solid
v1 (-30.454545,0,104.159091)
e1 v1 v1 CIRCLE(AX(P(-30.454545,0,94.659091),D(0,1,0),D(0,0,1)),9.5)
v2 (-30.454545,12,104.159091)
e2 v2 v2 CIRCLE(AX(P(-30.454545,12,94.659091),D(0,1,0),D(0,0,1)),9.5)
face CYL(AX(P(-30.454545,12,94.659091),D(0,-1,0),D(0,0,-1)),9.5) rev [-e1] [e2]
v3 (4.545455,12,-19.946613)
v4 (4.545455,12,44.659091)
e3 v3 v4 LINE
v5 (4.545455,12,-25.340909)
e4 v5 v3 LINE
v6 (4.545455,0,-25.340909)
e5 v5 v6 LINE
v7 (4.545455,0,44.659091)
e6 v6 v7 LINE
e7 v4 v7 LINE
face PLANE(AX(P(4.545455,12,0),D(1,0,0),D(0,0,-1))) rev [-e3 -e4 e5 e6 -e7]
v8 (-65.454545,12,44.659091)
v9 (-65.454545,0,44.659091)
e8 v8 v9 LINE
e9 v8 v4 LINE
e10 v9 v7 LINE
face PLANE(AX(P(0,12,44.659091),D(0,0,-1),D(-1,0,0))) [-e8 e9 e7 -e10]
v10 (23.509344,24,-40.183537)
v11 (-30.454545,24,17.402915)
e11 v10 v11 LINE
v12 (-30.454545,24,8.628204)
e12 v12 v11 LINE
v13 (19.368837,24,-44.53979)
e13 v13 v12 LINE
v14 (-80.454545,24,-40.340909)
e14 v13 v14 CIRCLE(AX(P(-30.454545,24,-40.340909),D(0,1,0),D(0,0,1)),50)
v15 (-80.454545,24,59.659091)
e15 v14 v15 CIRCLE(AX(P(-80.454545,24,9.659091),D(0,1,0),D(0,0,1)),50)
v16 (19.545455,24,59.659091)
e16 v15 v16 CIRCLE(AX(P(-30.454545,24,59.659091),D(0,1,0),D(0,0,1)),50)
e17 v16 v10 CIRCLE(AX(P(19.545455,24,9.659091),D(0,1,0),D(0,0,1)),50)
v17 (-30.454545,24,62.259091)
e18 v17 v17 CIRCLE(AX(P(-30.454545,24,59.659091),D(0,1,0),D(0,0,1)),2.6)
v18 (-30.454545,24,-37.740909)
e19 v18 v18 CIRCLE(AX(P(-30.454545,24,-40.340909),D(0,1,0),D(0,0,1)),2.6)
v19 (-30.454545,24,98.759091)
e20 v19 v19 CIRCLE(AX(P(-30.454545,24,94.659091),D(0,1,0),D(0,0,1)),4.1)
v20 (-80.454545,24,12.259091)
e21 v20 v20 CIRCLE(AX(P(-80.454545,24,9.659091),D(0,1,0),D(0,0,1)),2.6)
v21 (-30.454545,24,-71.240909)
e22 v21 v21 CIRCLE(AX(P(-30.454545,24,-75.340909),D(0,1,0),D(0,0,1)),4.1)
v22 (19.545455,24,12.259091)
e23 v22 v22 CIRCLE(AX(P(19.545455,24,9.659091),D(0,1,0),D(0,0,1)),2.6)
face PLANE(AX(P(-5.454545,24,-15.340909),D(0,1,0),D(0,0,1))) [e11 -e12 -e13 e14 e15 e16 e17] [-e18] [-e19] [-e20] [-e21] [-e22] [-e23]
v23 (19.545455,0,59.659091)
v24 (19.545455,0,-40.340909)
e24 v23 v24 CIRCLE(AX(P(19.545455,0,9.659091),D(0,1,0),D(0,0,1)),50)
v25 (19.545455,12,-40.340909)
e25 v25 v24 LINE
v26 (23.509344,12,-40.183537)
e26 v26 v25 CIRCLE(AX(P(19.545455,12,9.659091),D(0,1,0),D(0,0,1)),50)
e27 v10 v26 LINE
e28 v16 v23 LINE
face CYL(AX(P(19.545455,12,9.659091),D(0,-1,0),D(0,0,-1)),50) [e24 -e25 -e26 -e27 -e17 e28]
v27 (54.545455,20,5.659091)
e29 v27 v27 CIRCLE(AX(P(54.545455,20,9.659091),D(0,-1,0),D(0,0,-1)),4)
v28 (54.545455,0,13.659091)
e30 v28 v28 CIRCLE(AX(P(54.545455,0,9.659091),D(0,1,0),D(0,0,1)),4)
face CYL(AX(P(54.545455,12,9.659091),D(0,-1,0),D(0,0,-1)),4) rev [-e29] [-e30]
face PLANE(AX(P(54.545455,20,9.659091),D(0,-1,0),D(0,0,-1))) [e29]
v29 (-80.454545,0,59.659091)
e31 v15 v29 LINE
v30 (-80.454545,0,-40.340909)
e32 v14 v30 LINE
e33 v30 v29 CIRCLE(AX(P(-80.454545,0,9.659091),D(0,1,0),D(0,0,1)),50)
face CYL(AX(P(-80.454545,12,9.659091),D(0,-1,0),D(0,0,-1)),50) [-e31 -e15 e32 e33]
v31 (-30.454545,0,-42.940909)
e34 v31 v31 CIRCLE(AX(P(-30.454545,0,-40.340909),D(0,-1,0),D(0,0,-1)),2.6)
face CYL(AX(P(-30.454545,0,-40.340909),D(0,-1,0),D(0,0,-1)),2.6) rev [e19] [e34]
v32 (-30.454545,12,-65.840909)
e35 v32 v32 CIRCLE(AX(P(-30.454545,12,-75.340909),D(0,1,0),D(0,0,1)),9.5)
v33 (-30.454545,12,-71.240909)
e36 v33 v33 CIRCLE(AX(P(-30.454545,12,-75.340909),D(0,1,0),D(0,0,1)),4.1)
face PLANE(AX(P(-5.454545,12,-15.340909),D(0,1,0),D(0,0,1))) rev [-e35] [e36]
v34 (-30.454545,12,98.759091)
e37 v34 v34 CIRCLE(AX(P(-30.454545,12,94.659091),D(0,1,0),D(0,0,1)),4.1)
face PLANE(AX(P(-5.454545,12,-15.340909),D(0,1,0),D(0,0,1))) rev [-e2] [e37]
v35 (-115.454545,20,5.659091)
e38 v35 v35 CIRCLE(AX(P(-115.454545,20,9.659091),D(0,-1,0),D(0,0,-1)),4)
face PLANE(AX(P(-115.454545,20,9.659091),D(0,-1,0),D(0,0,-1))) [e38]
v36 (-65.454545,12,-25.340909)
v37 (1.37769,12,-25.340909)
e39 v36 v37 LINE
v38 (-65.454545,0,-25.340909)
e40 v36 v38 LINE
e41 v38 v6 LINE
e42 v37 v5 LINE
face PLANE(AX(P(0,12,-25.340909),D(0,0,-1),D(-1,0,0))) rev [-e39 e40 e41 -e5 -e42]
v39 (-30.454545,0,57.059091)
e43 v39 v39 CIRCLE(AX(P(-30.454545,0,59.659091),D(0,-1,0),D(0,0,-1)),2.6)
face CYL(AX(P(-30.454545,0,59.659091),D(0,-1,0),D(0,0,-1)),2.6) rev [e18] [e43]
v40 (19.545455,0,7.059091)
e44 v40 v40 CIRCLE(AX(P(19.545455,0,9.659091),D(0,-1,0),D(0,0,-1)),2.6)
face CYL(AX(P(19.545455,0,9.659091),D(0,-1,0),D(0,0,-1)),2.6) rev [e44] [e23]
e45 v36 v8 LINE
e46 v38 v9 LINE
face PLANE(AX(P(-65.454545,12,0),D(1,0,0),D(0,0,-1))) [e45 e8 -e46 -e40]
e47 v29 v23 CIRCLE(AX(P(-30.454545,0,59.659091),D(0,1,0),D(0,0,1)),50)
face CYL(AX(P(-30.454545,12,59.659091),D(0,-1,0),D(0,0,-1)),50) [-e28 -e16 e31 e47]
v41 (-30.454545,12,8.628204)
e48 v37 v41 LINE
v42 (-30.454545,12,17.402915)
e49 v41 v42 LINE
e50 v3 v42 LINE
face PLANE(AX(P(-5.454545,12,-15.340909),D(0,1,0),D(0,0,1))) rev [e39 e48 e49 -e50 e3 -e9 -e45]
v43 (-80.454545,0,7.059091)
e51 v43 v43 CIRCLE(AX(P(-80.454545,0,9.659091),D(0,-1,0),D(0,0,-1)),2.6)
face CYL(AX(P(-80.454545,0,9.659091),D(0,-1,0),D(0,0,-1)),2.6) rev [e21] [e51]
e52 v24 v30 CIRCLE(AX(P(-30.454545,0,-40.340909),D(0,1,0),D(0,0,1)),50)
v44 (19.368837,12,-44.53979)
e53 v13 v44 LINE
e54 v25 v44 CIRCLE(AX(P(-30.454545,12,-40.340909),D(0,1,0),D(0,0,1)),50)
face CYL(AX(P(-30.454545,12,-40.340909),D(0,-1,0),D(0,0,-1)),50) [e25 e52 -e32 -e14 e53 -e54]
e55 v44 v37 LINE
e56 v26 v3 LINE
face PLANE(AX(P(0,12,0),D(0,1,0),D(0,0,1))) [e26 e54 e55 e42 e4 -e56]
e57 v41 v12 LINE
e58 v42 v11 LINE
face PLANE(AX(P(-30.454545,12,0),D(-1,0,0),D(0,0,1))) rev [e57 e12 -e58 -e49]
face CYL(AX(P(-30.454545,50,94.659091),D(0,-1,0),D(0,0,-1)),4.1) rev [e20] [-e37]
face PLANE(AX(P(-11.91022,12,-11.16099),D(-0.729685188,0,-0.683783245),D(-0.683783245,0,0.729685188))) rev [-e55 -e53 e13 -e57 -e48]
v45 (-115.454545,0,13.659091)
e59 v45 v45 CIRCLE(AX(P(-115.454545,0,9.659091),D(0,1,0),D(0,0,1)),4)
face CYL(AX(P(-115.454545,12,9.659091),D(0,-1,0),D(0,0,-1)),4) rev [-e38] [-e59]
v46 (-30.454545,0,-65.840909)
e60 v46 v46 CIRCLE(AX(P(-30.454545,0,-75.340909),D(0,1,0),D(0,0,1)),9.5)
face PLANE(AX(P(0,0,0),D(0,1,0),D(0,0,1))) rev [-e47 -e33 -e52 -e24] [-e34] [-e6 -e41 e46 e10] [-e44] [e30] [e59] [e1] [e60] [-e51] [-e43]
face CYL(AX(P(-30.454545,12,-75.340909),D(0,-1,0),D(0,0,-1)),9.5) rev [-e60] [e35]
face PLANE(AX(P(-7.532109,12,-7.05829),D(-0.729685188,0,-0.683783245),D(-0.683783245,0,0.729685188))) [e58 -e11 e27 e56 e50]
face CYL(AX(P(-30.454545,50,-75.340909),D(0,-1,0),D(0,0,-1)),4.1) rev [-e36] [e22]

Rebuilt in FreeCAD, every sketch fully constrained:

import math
import FreeCAD as App
import Part
import Sketcher
from FreeCAD import Vector
Q = App.Units.Quantity

doc = App.newDocument("Part")
body = doc.addObject("PartDesign::Body", "Body")

# Sketch on XZ plane
sketch1 = body.newObject("Sketcher::SketchObject", "Sketch")
sketch1.AttachmentSupport = (doc.getObject("XZ_Plane"), [""])
sketch1.MapMode = "FlatFace"
sketch1.addGeometry(Part.ArcOfCircle(Part.Circle(Vector(-30.454545, -40.340909, 0), Vector(0, 0, 1), 50), math.radians(180), math.radians(360)), False)
sketch1.addGeometry(Part.ArcOfCircle(Part.Circle(Vector(-80.454545, 9.659091, 0), Vector(0, 0, 1), 50), math.radians(90), math.radians(270)), False)
sketch1.addGeometry(Part.ArcOfCircle(Part.Circle(Vector(-30.454545, 59.659091, 0), Vector(0, 0, 1), 50), math.radians(0), math.radians(180)), False)
sketch1.addGeometry(Part.ArcOfCircle(Part.Circle(Vector(19.545455, 9.659091, 0), Vector(0, 0, 1), 50), math.radians(-90), math.radians(90)), False)
sketch1.addGeometry(Part.Circle(Vector(-30.454545, 94.659091, 0), Vector(0, 0, 1), 9.5), False)
sketch1.addGeometry(Part.Circle(Vector(-115.454545, 9.659091, 0), Vector(0, 0, 1), 4), False)
sketch1.addGeometry(Part.LineSegment(Vector(4.545455, 44.659091, 0), Vector(-65.454545, 44.659091, 0)), False)
sketch1.addGeometry(Part.LineSegment(Vector(-65.454545, 44.659091, 0), Vector(-65.454545, -25.340909, 0)), False)
sketch1.addGeometry(Part.LineSegment(Vector(-65.454545, -25.340909, 0), Vector(4.545455, -25.340909, 0)), False)
sketch1.addGeometry(Part.LineSegment(Vector(4.545455, -25.340909, 0), Vector(4.545455, 44.659091, 0)), False)
sketch1.addGeometry(Part.Circle(Vector(54.545455, 9.659091, 0), Vector(0, 0, 1), 4), False)
sketch1.addGeometry(Part.Circle(Vector(-30.454545, -75.340909, 0), Vector(0, 0, 1), 9.5), False)
sketch1.addConstraint(Sketcher.Constraint("Coincident", 0, 1, 1, 2))
sketch1.addConstraint(Sketcher.Constraint("Coincident", 1, 1, 2, 2))
sketch1.addConstraint(Sketcher.Constraint("Coincident", 2, 1, 3, 2))
sketch1.addConstraint(Sketcher.Constraint("Coincident", 3, 1, 0, 2))
sketch1.addConstraint(Sketcher.Constraint("Coincident", 6, 2, 7, 1))
sketch1.addConstraint(Sketcher.Constraint("Coincident", 7, 2, 8, 1))
sketch1.addConstraint(Sketcher.Constraint("Coincident", 8, 2, 9, 1))
sketch1.addConstraint(Sketcher.Constraint("Coincident", 9, 2, 6, 1))
sketch1.addConstraint(Sketcher.Constraint("Horizontal", 6))
sketch1.addConstraint(Sketcher.Constraint("Vertical", 7))
sketch1.addConstraint(Sketcher.Constraint("Horizontal", 8))
sketch1.addConstraint(Sketcher.Constraint("Vertical", 9))
sketch1.addConstraint(Sketcher.Constraint("Equal", 0, 1))
sketch1.addConstraint(Sketcher.Constraint("Equal", 1, 2))
sketch1.addConstraint(Sketcher.Constraint("Equal", 2, 3))
sketch1.addConstraint(Sketcher.Constraint("Equal", 5, 10))
sketch1.addConstraint(Sketcher.Constraint("Equal", 4, 11))
sketch1.addConstraint(Sketcher.Constraint("Horizontal", 1, 3, 3, 3))
sketch1.addConstraint(Sketcher.Constraint("Horizontal", 3, 3, 5, 3))
sketch1.addConstraint(Sketcher.Constraint("Horizontal", 5, 3, 10, 3))
sketch1.addConstraint(Sketcher.Constraint("Horizontal", 2, 3, 1, 1))
sketch1.addConstraint(Sketcher.Constraint("Vertical", 0, 3, 2, 3))
sketch1.addConstraint(Sketcher.Constraint("Vertical", 2, 3, 4, 3))
sketch1.addConstraint(Sketcher.Constraint("Vertical", 4, 3, 11, 3))
sketch1.addConstraint(Sketcher.Constraint("Vertical", 1, 3, 0, 1))
sketch1.addConstraint(Sketcher.Constraint("Vertical", 3, 3, 2, 1))
sketch1.addConstraint(Sketcher.Constraint("Equal", 8, 7))
sketch1.addConstraint(Sketcher.Constraint("Diameter", 4, 19.0))
sketch1.addConstraint(Sketcher.Constraint("Diameter", 5, 8.0))
sketch1.addConstraint(Sketcher.Constraint("Radius", 0, 50.0))
sketch1.addConstraint(Sketcher.Constraint("DistanceX", 6, 2, 6, 1, 70.0))
sketch1.addConstraint(Sketcher.Constraint("DistanceY", 0, 3, 1, 3, 50.0))
sketch1.addConstraint(Sketcher.Constraint("DistanceY", 2, 3, 4, 3, 35.0))
sketch1.addConstraint(Sketcher.Constraint("DistanceX", 5, 3, 1, 3, 35.0))
sketch1.addConstraint(Sketcher.Constraint("DistanceX", 3, 3, 10, 3, 35.0))
sketch1.addConstraint(Sketcher.Constraint("DistanceY", 11, 3, 0, 3, 35.0))
sketch1.addConstraint(Sketcher.Constraint("DistanceX", 1, 1, 6, 2, 15.0))
sketch1.addConstraint(Sketcher.Constraint("DistanceY", 6, 2, 1, 1, 15.0))
sketch1.addConstraint(Sketcher.Constraint("DistanceY", 0, 3, -1, 1, 40.340909))
sketch1.addConstraint(Sketcher.Constraint("DistanceX", 0, 3, -1, 1, 30.454545))
pad1 = body.newObject("PartDesign::Pad", "Pad")
pad1.Profile = sketch1
pad1.Length = 12
pad1.Reversed = True

# Sketch on XZ plane
sketch2 = body.newObject("Sketcher::SketchObject", "Sketch001")
sketch2.AttachmentSupport = (doc.getObject("XZ_Plane"), [""])
sketch2.MapMode = "FlatFace"
sketch2.AttachmentOffset = App.Placement(Vector(0, 0, -12), App.Rotation())
sketch2.addGeometry(Part.ArcOfCircle(Part.Circle(Vector(-30.454545, -40.340909, 0), Vector(0, 0, 1), 50), math.radians(180), math.radians(360)), False)
sketch2.addGeometry(Part.ArcOfCircle(Part.Circle(Vector(-80.454545, 9.659091, 0), Vector(0, 0, 1), 50), math.radians(90), math.radians(270)), False)
sketch2.addGeometry(Part.ArcOfCircle(Part.Circle(Vector(-30.454545, 59.659091, 0), Vector(0, 0, 1), 50), math.radians(0), math.radians(180)), False)
sketch2.addGeometry(Part.ArcOfCircle(Part.Circle(Vector(19.545455, 9.659091, 0), Vector(0, 0, 1), 50), math.radians(-90), math.radians(90)), False)
sketch2.addConstraint(Sketcher.Constraint("Coincident", 0, 1, 1, 2))
sketch2.addConstraint(Sketcher.Constraint("Coincident", 1, 1, 2, 2))
sketch2.addConstraint(Sketcher.Constraint("Coincident", 2, 1, 3, 2))
sketch2.addConstraint(Sketcher.Constraint("Coincident", 3, 1, 0, 2))
sketch2.addConstraint(Sketcher.Constraint("Equal", 0, 1))
sketch2.addConstraint(Sketcher.Constraint("Equal", 1, 2))
sketch2.addConstraint(Sketcher.Constraint("Equal", 2, 3))
sketch2.addConstraint(Sketcher.Constraint("Horizontal", 1, 3, 3, 3))
sketch2.addConstraint(Sketcher.Constraint("Horizontal", 2, 3, 1, 1))
sketch2.addConstraint(Sketcher.Constraint("Vertical", 0, 3, 2, 3))
sketch2.addConstraint(Sketcher.Constraint("Vertical", 1, 3, 0, 1))
sketch2.addConstraint(Sketcher.Constraint("Vertical", 3, 3, 2, 1))
sketch2.addConstraint(Sketcher.Constraint("Radius", 0, 50.0))
sketch2.addConstraint(Sketcher.Constraint("DistanceY", 0, 3, 1, 3, 50.0))
sketch2.addConstraint(Sketcher.Constraint("DistanceY", 0, 3, -1, 1, 40.340909))
sketch2.addConstraint(Sketcher.Constraint("DistanceX", 0, 3, -1, 1, 30.454545))
pad2 = body.newObject("PartDesign::Pad", "Pad001")
pad2.Profile = sketch2
pad2.Length = 12
pad2.Reversed = True

# Sketch on XZ plane
sketch3 = body.newObject("Sketcher::SketchObject", "Sketch002")
sketch3.AttachmentSupport = (doc.getObject("XZ_Plane"), [""])
sketch3.MapMode = "FlatFace"
sketch3.AttachmentOffset = App.Placement(Vector(0, 0, -12), App.Rotation())
sketch3.addGeometry(Part.LineSegment(Vector(-30.454545, 8.628204, 0), Vector(-30.454545, 17.402915, 0)), False)
sketch3.addGeometry(Part.LineSegment(Vector(-30.454545, 17.402915, 0), Vector(23.509344, -40.183537, 0)), False)
sketch3.addGeometry(Part.ArcOfCircle(Part.Circle(Vector(19.545455, 9.65909, 0), Vector(0, 0, 1), 49.999999), math.radians(-90), math.radians(-85.452945)), False)
sketch3.addGeometry(Part.ArcOfCircle(Part.Circle(Vector(-30.454545, -40.340909, 0), Vector(0, 0, 1), 49.999999), math.radians(-4.817237), math.radians(0)), False)
sketch3.addGeometry(Part.LineSegment(Vector(19.368837, -44.53979, 0), Vector(-30.454545, 8.628204, 0)), False)
sketch3.addConstraint(Sketcher.Constraint("Coincident", 0, 2, 1, 1))
sketch3.addConstraint(Sketcher.Constraint("Coincident", 1, 2, 2, 2))
sketch3.addConstraint(Sketcher.Constraint("Coincident", 2, 1, 3, 2))
sketch3.addConstraint(Sketcher.Constraint("Coincident", 3, 1, 4, 1))
sketch3.addConstraint(Sketcher.Constraint("Coincident", 4, 2, 0, 1))
sketch3.addConstraint(Sketcher.Constraint("Vertical", 0))
sketch3.addConstraint(Sketcher.Constraint("Equal", 2, 3))
sketch3.addConstraint(Sketcher.Constraint("Parallel", 1, 4))
sketch3.addConstraint(Sketcher.Constraint("Horizontal", 3, 3, 2, 1))
sketch3.addConstraint(Sketcher.Constraint("Vertical", 3, 3, 0, 2))
sketch3.addConstraint(Sketcher.Constraint("Radius", 2, 49.999999))
sketch3.addConstraint(Sketcher.Constraint("DistanceX", 3, 3, 2, 3, 49.999999))
sketch3.addConstraint(Sketcher.Constraint("Angle", 1, Q("-46.860009 deg")))
sketch3.addConstraint(Sketcher.Constraint("DistanceY", 0, 1, 0, 2, 8.77471))
sketch3.addConstraint(Sketcher.Constraint("DistanceY", -1, 1, 2, 3, 9.65909))
sketch3.addConstraint(Sketcher.Constraint("DistanceY", 3, 1, -1, 1, 44.53979))
sketch3.addConstraint(Sketcher.Constraint("DistanceX", -1, 1, 2, 3, 19.545455))
pocket1 = body.newObject("PartDesign::Pocket", "Pocket")
pocket1.Profile = sketch3
pocket1.Length = 12

# Sketch on XZ plane
sketch4 = body.newObject("Sketcher::SketchObject", "Sketch003")
sketch4.AttachmentSupport = (doc.getObject("XZ_Plane"), [""])
sketch4.MapMode = "FlatFace"
sketch4.addGeometry(Part.Circle(Vector(-115.454545, 9.659091, 0), Vector(0, 0, 1), 4), False)
sketch4.addGeometry(Part.Circle(Vector(54.545455, 9.659091, 0), Vector(0, 0, 1), 4), False)
sketch4.addConstraint(Sketcher.Constraint("Equal", 0, 1))
sketch4.addConstraint(Sketcher.Constraint("Horizontal", 0, 3, 1, 3))
sketch4.addConstraint(Sketcher.Constraint("Diameter", 0, 8.0))
sketch4.addConstraint(Sketcher.Constraint("DistanceX", 0, 3, 1, 3, 170.0))
sketch4.addConstraint(Sketcher.Constraint("DistanceY", -1, 1, 0, 3, 9.659091))
sketch4.addConstraint(Sketcher.Constraint("DistanceX", 0, 3, -1, 1, 115.454545))
pocket2 = body.newObject("PartDesign::Pocket", "Pocket001")
pocket2.Profile = sketch4
pocket2.Length = 20

# Sketch on XZ plane
sketch5 = body.newObject("Sketcher::SketchObject", "Sketch004")
sketch5.AttachmentSupport = (doc.getObject("XZ_Plane"), [""])
sketch5.MapMode = "FlatFace"
sketch5.addGeometry(Part.Circle(Vector(-80.454545, 9.659091, 0), Vector(0, 0, 1), 2.6), False)
sketch5.addGeometry(Part.Circle(Vector(-30.454545, 59.659091, 0), Vector(0, 0, 1), 2.6), False)
sketch5.addGeometry(Part.Circle(Vector(19.545455, 9.659091, 0), Vector(0, 0, 1), 2.6), False)
sketch5.addGeometry(Part.Circle(Vector(-30.454545, -40.340909, 0), Vector(0, 0, 1), 2.6), False)
sketch5.addConstraint(Sketcher.Constraint("Equal", 0, 1))
sketch5.addConstraint(Sketcher.Constraint("Equal", 1, 2))
sketch5.addConstraint(Sketcher.Constraint("Equal", 2, 3))
sketch5.addConstraint(Sketcher.Constraint("Horizontal", 0, 3, 2, 3))
sketch5.addConstraint(Sketcher.Constraint("Vertical", 1, 3, 3, 3))
sketch5.addConstraint(Sketcher.Constraint("Diameter", 0, 5.2))
sketch5.addConstraint(Sketcher.Constraint("DistanceX", 0, 3, 1, 3, 50.0))
sketch5.addConstraint(Sketcher.Constraint("DistanceY", 0, 3, 1, 3, 50.0))
sketch5.addConstraint(Sketcher.Constraint("DistanceX", 1, 3, 2, 3, 50.0))
sketch5.addConstraint(Sketcher.Constraint("DistanceY", 3, 3, 0, 3, 50.0))
sketch5.addConstraint(Sketcher.Constraint("DistanceY", -1, 1, 0, 3, 9.659091))
sketch5.addConstraint(Sketcher.Constraint("DistanceX", 0, 3, -1, 1, 80.454545))
doc.recompute()
hole = body.newObject("PartDesign::Hole", "Hole")
hole.Profile = sketch5
hole.ThreadType = "None"
hole.Diameter = 5.2
hole.DepthType = "ThroughAll"

# Sketch on XZ plane
sketch6 = body.newObject("Sketcher::SketchObject", "Sketch005")
sketch6.AttachmentSupport = (doc.getObject("XZ_Plane"), [""])
sketch6.MapMode = "FlatFace"
sketch6.addGeometry(Part.Circle(Vector(-30.454545, 94.659091, 0), Vector(0, 0, 1), 4.1), False)
sketch6.addGeometry(Part.Circle(Vector(-30.454545, -75.340909, 0), Vector(0, 0, 1), 4.1), False)
sketch6.addConstraint(Sketcher.Constraint("Equal", 0, 1))
sketch6.addConstraint(Sketcher.Constraint("Vertical", 0, 3, 1, 3))
sketch6.addConstraint(Sketcher.Constraint("Diameter", 0, 8.2))
sketch6.addConstraint(Sketcher.Constraint("DistanceY", 1, 3, 0, 3, 170.0))
sketch6.addConstraint(Sketcher.Constraint("DistanceY", -1, 1, 0, 3, 94.659091))
sketch6.addConstraint(Sketcher.Constraint("DistanceX", 0, 3, -1, 1, 30.454545))
pocket3 = body.newObject("PartDesign::Pocket", "Pocket002")
pocket3.Profile = sketch6
pocket3.Length = 50

doc.recompute()
